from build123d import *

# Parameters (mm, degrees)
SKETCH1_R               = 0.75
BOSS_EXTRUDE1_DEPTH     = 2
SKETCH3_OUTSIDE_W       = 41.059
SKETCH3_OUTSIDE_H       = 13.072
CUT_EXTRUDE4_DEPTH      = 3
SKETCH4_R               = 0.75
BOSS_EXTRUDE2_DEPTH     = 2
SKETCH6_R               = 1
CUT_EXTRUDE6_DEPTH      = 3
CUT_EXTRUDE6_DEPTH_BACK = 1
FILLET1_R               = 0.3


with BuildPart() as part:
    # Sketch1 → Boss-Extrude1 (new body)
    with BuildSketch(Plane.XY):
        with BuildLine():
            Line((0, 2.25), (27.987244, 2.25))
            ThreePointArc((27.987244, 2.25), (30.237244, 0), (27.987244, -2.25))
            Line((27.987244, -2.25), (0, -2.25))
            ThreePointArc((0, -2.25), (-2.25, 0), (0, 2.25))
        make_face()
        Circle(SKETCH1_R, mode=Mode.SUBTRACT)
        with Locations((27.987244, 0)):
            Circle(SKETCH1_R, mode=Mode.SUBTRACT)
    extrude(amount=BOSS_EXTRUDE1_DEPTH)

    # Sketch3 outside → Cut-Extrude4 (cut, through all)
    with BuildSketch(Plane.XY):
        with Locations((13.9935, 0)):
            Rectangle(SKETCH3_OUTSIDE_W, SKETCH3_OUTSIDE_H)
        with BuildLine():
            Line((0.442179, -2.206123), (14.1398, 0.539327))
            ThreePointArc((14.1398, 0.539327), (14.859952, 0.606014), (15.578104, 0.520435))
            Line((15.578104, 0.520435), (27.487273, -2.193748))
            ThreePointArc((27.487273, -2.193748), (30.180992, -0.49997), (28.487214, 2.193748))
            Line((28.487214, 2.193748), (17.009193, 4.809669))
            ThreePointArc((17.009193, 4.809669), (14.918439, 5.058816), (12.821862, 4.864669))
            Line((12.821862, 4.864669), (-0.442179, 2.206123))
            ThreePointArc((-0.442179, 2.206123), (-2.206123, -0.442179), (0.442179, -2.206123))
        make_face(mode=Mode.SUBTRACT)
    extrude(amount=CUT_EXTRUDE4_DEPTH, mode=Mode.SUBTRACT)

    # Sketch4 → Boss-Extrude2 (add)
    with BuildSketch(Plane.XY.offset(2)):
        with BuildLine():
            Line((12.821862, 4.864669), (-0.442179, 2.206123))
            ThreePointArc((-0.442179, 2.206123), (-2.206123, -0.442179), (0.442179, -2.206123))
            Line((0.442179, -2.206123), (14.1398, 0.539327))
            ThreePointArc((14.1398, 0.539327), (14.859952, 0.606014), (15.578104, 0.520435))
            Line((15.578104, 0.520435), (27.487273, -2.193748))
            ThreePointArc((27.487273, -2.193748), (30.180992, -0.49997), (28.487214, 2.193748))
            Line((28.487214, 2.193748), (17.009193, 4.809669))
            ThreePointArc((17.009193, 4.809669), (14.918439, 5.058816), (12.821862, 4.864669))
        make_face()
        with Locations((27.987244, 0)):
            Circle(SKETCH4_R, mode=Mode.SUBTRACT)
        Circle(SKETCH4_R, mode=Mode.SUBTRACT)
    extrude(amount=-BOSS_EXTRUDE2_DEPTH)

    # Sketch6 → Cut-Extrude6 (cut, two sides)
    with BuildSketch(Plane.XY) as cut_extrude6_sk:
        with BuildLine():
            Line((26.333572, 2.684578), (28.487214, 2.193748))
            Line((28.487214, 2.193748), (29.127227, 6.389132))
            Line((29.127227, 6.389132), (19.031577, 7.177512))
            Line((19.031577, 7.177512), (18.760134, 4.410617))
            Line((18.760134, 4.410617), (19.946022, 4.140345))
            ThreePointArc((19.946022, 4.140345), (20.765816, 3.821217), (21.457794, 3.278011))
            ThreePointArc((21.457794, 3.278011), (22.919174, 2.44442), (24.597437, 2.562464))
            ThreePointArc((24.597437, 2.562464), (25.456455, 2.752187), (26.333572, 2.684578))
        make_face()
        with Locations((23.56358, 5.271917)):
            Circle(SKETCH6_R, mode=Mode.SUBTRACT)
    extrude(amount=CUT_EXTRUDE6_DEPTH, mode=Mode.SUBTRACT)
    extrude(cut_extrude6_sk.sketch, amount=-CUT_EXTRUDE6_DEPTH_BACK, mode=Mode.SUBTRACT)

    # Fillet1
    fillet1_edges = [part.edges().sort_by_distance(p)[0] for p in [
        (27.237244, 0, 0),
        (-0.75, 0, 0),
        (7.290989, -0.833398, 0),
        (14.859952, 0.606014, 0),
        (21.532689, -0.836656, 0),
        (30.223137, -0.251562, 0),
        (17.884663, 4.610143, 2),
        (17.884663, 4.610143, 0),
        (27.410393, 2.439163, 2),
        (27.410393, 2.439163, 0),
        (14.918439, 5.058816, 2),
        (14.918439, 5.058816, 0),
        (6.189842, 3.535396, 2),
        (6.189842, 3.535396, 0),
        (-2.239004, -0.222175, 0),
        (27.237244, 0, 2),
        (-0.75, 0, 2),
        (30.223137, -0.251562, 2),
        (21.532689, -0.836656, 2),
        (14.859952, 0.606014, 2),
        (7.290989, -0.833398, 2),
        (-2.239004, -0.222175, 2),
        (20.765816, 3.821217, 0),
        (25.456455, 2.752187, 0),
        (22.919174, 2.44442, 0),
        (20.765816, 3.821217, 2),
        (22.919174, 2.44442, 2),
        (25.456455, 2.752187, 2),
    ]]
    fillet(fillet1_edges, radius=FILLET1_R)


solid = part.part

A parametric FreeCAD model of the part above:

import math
import FreeCAD as App
import Part
import Sketcher


def edges_at(feature, points):
    """Names of the edges that pass closest to the given points."""
    edges = feature.Shape.Edges
    near = lambda p: min(range(len(edges)), key=lambda i: edges[i].distToShape(Part.Vertex(*p))[0])
    return sorted({f"Edge{near(p) + 1}" for p in points})

doc = App.newDocument("Part")
body = doc.addObject("PartDesign::Body", "Body")

# Sketch on XY plane
sketch1 = body.newObject("Sketcher::SketchObject", "Sketch")
sketch1.AttachmentSupport = (doc.getObject("XY_Plane"), [""])
sketch1.MapMode = "FlatFace"
sketch1.addGeometry([
    Part.LineSegment(App.Vector(28, 2.2, 0), App.Vector(0, 2.2, 0)),  # 0
    Part.ArcOfCircle(Part.Circle(App.Vector(0, 0, 0), App.Vector(0, 0, 1), 2.2), math.radians(90), math.radians(270)),  # 1
    Part.LineSegment(App.Vector(0, -2.2, 0), App.Vector(28, -2.2, 0)),  # 2
    Part.ArcOfCircle(Part.Circle(App.Vector(28, 0, 0), App.Vector(0, 0, 1), 2.2), math.radians(-90), math.radians(90)),  # 3
    Part.Circle(App.Vector(28, 0, 0), App.Vector(0, 0, 1), 0.8),  # 4
    Part.Circle(App.Vector(0, 0, 0), App.Vector(0, 0, 1), 0.8),  # 5
], False)
sketch1.addConstraint([
    Sketcher.Constraint("Tangent", 0, 2, 1, 1),
    Sketcher.Constraint("Tangent", 1, 2, 2, 1),
    Sketcher.Constraint("Tangent", 2, 2, 3, 1),
    Sketcher.Constraint("Tangent", 3, 2, 0, 1),
    Sketcher.Constraint("Horizontal", 0),
    Sketcher.Constraint("Horizontal", 2),
    Sketcher.Constraint("Coincident", 1, 3, -1, 1),
    Sketcher.Constraint("Coincident", 5, 3, -1, 1),
    Sketcher.Constraint("Coincident", 4, 3, 3, 3),
    Sketcher.Constraint("Equal", 4, 5),
    Sketcher.Constraint("Diameter", 4, 1.5),
    Sketcher.Constraint("Radius", 1, 2.25),
    Sketcher.Constraint("DistanceX", 0, 2, 0, 1, 27.987244),
])
pad1 = body.newObject("PartDesign::Pad", "Pad")
pad1.Profile = sketch1
pad1.Length = 2

# Sketch on XY plane
sketch2 = body.newObject("Sketcher::SketchObject", "Sketch001")
sketch2.AttachmentSupport = (doc.getObject("XY_Plane"), [""])
sketch2.MapMode = "FlatFace"
sketch2.addGeometry([
    Part.LineSegment(App.Vector(-6.5, 6.5, 0), App.Vector(-6.5, -6.5, 0)),  # 0
    Part.LineSegment(App.Vector(-6.5, -6.5, 0), App.Vector(34.5, -6.5, 0)),  # 1
    Part.LineSegment(App.Vector(34.5, -6.5, 0), App.Vector(34.5, 6.5, 0)),  # 2
    Part.LineSegment(App.Vector(34.5, 6.5, 0), App.Vector(-6.5, 6.5, 0)),  # 3
    Part.LineSegment(App.Vector(14.1, 0.5, 0), App.Vector(0.4, -2.2, 0)),  # 4
    Part.ArcOfCircle(Part.Circle(App.Vector(0, 0, 0), App.Vector(0, 0, 1), 2.3), math.radians(101), math.radians(281)),  # 5
    Part.LineSegment(App.Vector(-0.4, 2.2, 0), App.Vector(12.8, 4.9, 0)),  # 6
    Part.ArcOfCircle(Part.Circle(App.Vector(14.8, -4.9, 0), App.Vector(0, 0, 1), 10), math.radians(77), math.radians(101)),  # 7
    Part.LineSegment(App.Vector(17, 4.8, 0), App.Vector(28.5, 2.2, 0)),  # 8
    Part.ArcOfCircle(Part.Circle(App.Vector(28, 0, 0), App.Vector(0, 0, 1), 2.3), math.radians(-103), math.radians(77)),  # 9
    Part.LineSegment(App.Vector(27.5, -2.2, 0), App.Vector(15.6, 0.5, 0)),  # 10
    Part.ArcOfCircle(Part.Circle(App.Vector(14.8, -2.8, 0), App.Vector(0, 0, 1), 3.4), math.radians(77), math.radians(101)),  # 11
], False)
sketch2.addConstraint([
    Sketcher.Constraint("Coincident", 0, 2, 1, 1),
    Sketcher.Constraint("Coincident", 1, 2, 2, 1),
    Sketcher.Constraint("Coincident", 2, 2, 3, 1),
    Sketcher.Constraint("Coincident", 3, 2, 0, 1),
    Sketcher.Constraint("Tangent", 4, 2, 5, 2),
    Sketcher.Constraint("Tangent", 5, 1, 6, 1),
    Sketcher.Constraint("Tangent", 6, 2, 7, 2),
    Sketcher.Constraint("Tangent", 7, 1, 8, 1),
    Sketcher.Constraint("Tangent", 8, 2, 9, 2),
    Sketcher.Constraint("Tangent", 9, 1, 10, 1),
    Sketcher.Constraint("Tangent", 10, 2, 11, 1),
    Sketcher.Constraint("Tangent", 11, 2, 4, 1),
    Sketcher.Constraint("Vertical", 0),
    Sketcher.Constraint("Horizontal", 1),
    Sketcher.Constraint("Vertical", 2),
    Sketcher.Constraint("Horizontal", 3),
    Sketcher.Constraint("Coincident", 5, 3, -1, 1),
    Sketcher.Constraint("Equal", 5, 9),
    Sketcher.Constraint("PointOnObject", 9, 3, -1),
    Sketcher.Constraint("Parallel", 4, 6),
    Sketcher.Constraint("Parallel", 8, 10),
    Sketcher.Constraint("Radius", 5, 2.25),
    Sketcher.Constraint("DistanceX", 1, 1, 1, 2, 41.059),
    Sketcher.Constraint("DistanceY", 0, 2, 0, 1, 13.072),
    Sketcher.Constraint("Radius", 7, 10.000011),
    Sketcher.Constraint("DistanceY", 7, 3, 7, 1, 9.750002),
    Sketcher.Constraint("DistanceX", 0, 2, -1, 1, 6.536),
    Sketcher.Constraint("DistanceY", 0, 2, -1, 1, 6.536),
    Sketcher.Constraint("Radius", 11, 3.434916),
    Sketcher.Constraint("DistanceY", 7, 3, 6, 2, 9.805002),
    Sketcher.Constraint("DistanceX", -1, 1, 7, 3, 14.787101),
])
pocket1 = body.newObject("PartDesign::Pocket", "Pocket")
pocket1.Profile = sketch2
pocket1.Type = "ThroughAll"
pocket1.Reversed = True

# Sketch on XY plane
sketch3 = body.newObject("Sketcher::SketchObject", "Sketch002")
sketch3.AttachmentSupport = (doc.getObject("XY_Plane"), [""])
sketch3.MapMode = "FlatFace"
sketch3.AttachmentOffset = App.Placement(App.Vector(0, 0, 2), App.Rotation())
sketch3.addGeometry([
    Part.LineSegment(App.Vector(12.8, 4.9, 0), App.Vector(-0.4, 2.2, 0)),  # 0
    Part.ArcOfCircle(Part.Circle(App.Vector(0, 0, 0), App.Vector(0, 0, 1), 2.3), math.radians(101), math.radians(281)),  # 1
    Part.LineSegment(App.Vector(0.4, -2.2, 0), App.Vector(14.1, 0.5, 0)),  # 2
    Part.ArcOfCircle(Part.Circle(App.Vector(14.8, -2.8, 0), App.Vector(0, 0, 1), 3.4), math.radians(77), math.radians(101)),  # 3
    Part.LineSegment(App.Vector(15.6, 0.5, 0), App.Vector(27.5, -2.2, 0)),  # 4
    Part.ArcOfCircle(Part.Circle(App.Vector(28, 0, 0), App.Vector(0, 0, 1), 2.3), math.radians(-103), math.radians(77)),  # 5
    Part.LineSegment(App.Vector(28.5, 2.2, 0), App.Vector(17, 4.8, 0)),  # 6
    Part.ArcOfCircle(Part.Circle(App.Vector(14.8, -4.9, 0), App.Vector(0, 0, 1), 10), math.radians(77), math.radians(101)),  # 7
    Part.Circle(App.Vector(0, 0, 0), App.Vector(0, 0, 1), 0.8),  # 8
    Part.Circle(App.Vector(28, 0, 0), App.Vector(0, 0, 1), 0.8),  # 9
], False)
sketch3.addConstraint([
    Sketcher.Constraint("Tangent", 0, 2, 1, 1),
    Sketcher.Constraint("Tangent", 1, 2, 2, 1),
    Sketcher.Constraint("Tangent", 2, 2, 3, 2),
    Sketcher.Constraint("Tangent", 3, 1, 4, 1),
    Sketcher.Constraint("Tangent", 4, 2, 5, 1),
    Sketcher.Constraint("Tangent", 5, 2, 6, 1),
    Sketcher.Constraint("Tangent", 6, 2, 7, 1),
    Sketcher.Constraint("Tangent", 7, 2, 0, 1),
    Sketcher.Constraint("Coincident", 1, 3, -1, 1),
    Sketcher.Constraint("Coincident", 8, 3, -1, 1),
    Sketcher.Constraint("Coincident", 9, 3, 5, 3),
    Sketcher.Constraint("Equal", 1, 5),
    Sketcher.Constraint("Equal", 8, 9),
    Sketcher.Constraint("PointOnObject", 5, 3, -1),
    Sketcher.Constraint("Parallel", 0, 2),
    Sketcher.Constraint("Parallel", 4, 6),
    Sketcher.Constraint("Diameter", 8, 1.5),
    Sketcher.Constraint("Radius", 1, 2.25),
    Sketcher.Constraint("Radius", 7, 10.000011),
    Sketcher.Constraint("DistanceY", 7, 3, 6, 2, 9.750002),
    Sketcher.Constraint("Radius", 3, 3.434916),
    Sketcher.Constraint("DistanceY", 6, 2, 7, 2, 0.055),
    Sketcher.Constraint("DistanceX", -1, 1, 7, 3, 14.787101),
])
pad2 = body.newObject("PartDesign::Pad", "Pad001")
pad2.Profile = sketch3
pad2.Length = 2
pad2.Reversed = True

# Sketch on XY plane
sketch4 = body.newObject("Sketcher::SketchObject", "Sketch003")
sketch4.AttachmentSupport = (doc.getObject("XY_Plane"), [""])
sketch4.MapMode = "FlatFace"
sketch4.addGeometry([
    Part.LineSegment(App.Vector(26.3, 2.7, 0), App.Vector(28.5, 2.2, 0)),  # 0
    Part.LineSegment(App.Vector(28.5, 2.2, 0), App.Vector(29.1, 6.4, 0)),  # 1
    Part.LineSegment(App.Vector(29.1, 6.4, 0), App.Vector(19, 7.2, 0)),  # 2
    Part.LineSegment(App.Vector(19, 7.2, 0), App.Vector(18.8, 4.4, 0)),  # 3
    Part.LineSegment(App.Vector(18.8, 4.4, 0), App.Vector(19.9, 4.1, 0)),  # 4
    Part.ArcOfCircle(Part.Circle(App.Vector(19.3, 1.2, 0), App.Vector(0, 0, 1), 3), math.radians(43), math.radians(77)),  # 5
    Part.ArcOfCircle(Part.Circle(App.Vector(23.6, 5.3, 0), App.Vector(0, 0, 1), 2.9), math.radians(-137), math.radians(-69)),  # 6
    Part.ArcOfCircle(Part.Circle(App.Vector(25.7, -0.2, 0), App.Vector(0, 0, 1), 3), math.radians(77), math.radians(111)),  # 7
    Part.Circle(App.Vector(23.6, 5.3, 0), App.Vector(0, 0, 1), 1),  # 8
], False)
sketch4.addConstraint([
    Sketcher.Constraint("Coincident", 0, 2, 1, 1),
    Sketcher.Constraint("Coincident", 1, 2, 2, 1),
    Sketcher.Constraint("Coincident", 2, 2, 3, 1),
    Sketcher.Constraint("Coincident", 3, 2, 4, 1),
    Sketcher.Constraint("Tangent", 4, 2, 5, 2),
    Sketcher.Constraint("Tangent", 5, 1, 6, 1),
    Sketcher.Constraint("Tangent", 6, 2, 7, 2),
    Sketcher.Constraint("Tangent", 7, 1, 0, 1),
    Sketcher.Constraint("Coincident", 8, 3, 6, 3),
    Sketcher.Constraint("Parallel", 0, 4),
    Sketcher.Constraint("Diameter", 8, 2.0),
    Sketcher.Constraint("Radius", 7, 3.000011),
    Sketcher.Constraint("Radius", 5, 2.999997),
    Sketcher.Constraint("Radius", 6, 2.899997),
    Sketcher.Constraint("DistanceY", 3, 2, 8, 3, 0.8613),
    Sketcher.Constraint("Distance", 1, 4.243921),
    Sketcher.Constraint("DistanceY", -1, 1, 5, 3, 1.21535),
    Sketcher.Constraint("DistanceX", -1, 1, 6, 3, 23.563579),
    Sketcher.Constraint("DistanceY", 7, 3, -1, 1, 0.240431),
    Sketcher.Constraint("DistanceX", -1, 1, 4, 2, 19.946022),
    Sketcher.Constraint("DistanceY", -1, 1, 5, 1, 3.278011),
    Sketcher.Constraint("DistanceX", 7, 3, 0, 2, 2.820269),
    Sketcher.Constraint("DistanceX", 7, 3, 1, 2, 3.460282),
    Sketcher.Constraint("DistanceX", 2, 2, 5, 3, 0.24782),
    Sketcher.Constraint("DistanceY", 5, 3, 2, 2, 5.962162),
])
pocket2 = body.newObject("PartDesign::Pocket", "Pocket001")
pocket2.Profile = sketch4
pocket2.Type = "ThroughAll"
pocket2.Midplane = True
doc.recompute()

fillet = body.newObject("PartDesign::Fillet", "Fillet")
fillet.Base = (pocket2, edges_at(pocket2, [
    (27.237, 0, 0),
    (-0.75, 0, 0),
    (7.291, -0.833, 0),
    (14.86, 0.606, 0),
    (21.533, -0.837, 0),
    (30.223, -0.252, 0),
    (18.478, 4.475, 2),
    (18.478, 4.475, 0),
    (27.41, 2.439, 2),
    (27.41, 2.439, 0),
    (14.918, 5.059, 2),
    (14.918, 5.059, 0),
    (6.19, 3.535, 2),
    (6.19, 3.535, 0),
    (-2.239, -0.222, 0),
    (27.237, 0, 2),
    (-0.75, 0, 2),
    (30.223, -0.252, 2),
    (21.533, -0.837, 2),
    (14.86, 0.606, 2),
    (7.291, -0.833, 2),
    (-2.239, -0.222, 2),
    (20.766, 3.821, 0),
    (25.456, 2.752, 0),
    (22.919, 2.444, 0),
    (20.766, 3.821, 2),
    (22.919, 2.444, 2),
    (25.456, 2.752, 2),
]))
fillet.Radius = 0.3

doc.recompute()
